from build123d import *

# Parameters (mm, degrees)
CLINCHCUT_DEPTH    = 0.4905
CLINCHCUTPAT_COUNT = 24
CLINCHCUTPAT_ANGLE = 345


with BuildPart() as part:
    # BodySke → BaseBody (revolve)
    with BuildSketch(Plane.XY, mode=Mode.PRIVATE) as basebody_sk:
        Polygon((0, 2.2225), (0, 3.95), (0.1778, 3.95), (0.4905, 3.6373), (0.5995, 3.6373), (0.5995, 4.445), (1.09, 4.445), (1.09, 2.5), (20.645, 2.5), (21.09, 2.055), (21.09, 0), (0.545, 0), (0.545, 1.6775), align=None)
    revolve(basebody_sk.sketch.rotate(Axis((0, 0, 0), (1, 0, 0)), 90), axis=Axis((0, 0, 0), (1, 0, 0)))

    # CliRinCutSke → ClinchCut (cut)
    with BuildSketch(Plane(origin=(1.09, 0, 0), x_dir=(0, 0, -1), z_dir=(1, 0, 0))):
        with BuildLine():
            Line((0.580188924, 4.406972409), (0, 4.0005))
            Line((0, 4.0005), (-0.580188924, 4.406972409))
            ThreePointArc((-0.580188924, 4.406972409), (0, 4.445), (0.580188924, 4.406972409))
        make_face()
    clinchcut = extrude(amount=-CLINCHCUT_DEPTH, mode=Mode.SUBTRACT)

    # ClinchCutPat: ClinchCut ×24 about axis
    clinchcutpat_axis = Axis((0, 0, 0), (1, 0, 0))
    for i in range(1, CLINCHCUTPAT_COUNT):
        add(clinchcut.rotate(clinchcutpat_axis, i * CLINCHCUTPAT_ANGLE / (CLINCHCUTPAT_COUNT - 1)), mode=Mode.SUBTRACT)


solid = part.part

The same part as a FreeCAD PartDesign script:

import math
import FreeCAD as App
import Part
import Sketcher
from FreeCAD import Vector
Q = App.Units.Quantity


def add_polygon(sketch, points):
    """Adds a closed chain of lines whose ends are joined by coincident constraints."""
    first, n = sketch.GeometryCount, len(points)
    for a, b in zip(points, points[1:] + points[:1]):
        sketch.addGeometry(Part.LineSegment(App.Vector(*a, 0), App.Vector(*b, 0)), False)
    for i in range(n):
        sketch.addConstraint(Sketcher.Constraint("Coincident", first + i, 2, first + (i + 1) % n, 1))

doc = App.newDocument("Part")
body = doc.addObject("PartDesign::Body", "Body")

sketch1 = doc.addObject("Sketcher::SketchObject", "Sketch")
body.addObject(sketch1)
sketch1.AttachmentSupport = (doc.XY_Plane, [""])
sketch1.MapMode = "FlatFace"
add_polygon(sketch1, [(0, 3.95), (0, 2.22), (0.55, 1.68), (0.55, 0), (21.09, 0), (21.09, 2.06), (20.64, 2.5), (1.09, 2.5), (1.09, 4.45), (0.6, 4.45), (0.6, 3.64), (0.49, 3.64), (0.18, 3.95)])
sketch1.addConstraint(Sketcher.Constraint("Vertical", 0))
sketch1.addConstraint(Sketcher.Constraint("Vertical", 2))
sketch1.addConstraint(Sketcher.Constraint("Horizontal", 3))
sketch1.addConstraint(Sketcher.Constraint("Vertical", 4))
sketch1.addConstraint(Sketcher.Constraint("Horizontal", 6))
sketch1.addConstraint(Sketcher.Constraint("Vertical", 7))
sketch1.addConstraint(Sketcher.Constraint("Horizontal", 8))
sketch1.addConstraint(Sketcher.Constraint("Vertical", 9))
sketch1.addConstraint(Sketcher.Constraint("Horizontal", 10))
sketch1.addConstraint(Sketcher.Constraint("Horizontal", 12))
sketch1.addConstraint(Sketcher.Constraint("PointOnObject", 0, 2, -2))
sketch1.addConstraint(Sketcher.Constraint("PointOnObject", 2, 2, -1))
sketch1.addConstraint(Sketcher.Constraint("Parallel", 1, 5))
sketch1.addConstraint(Sketcher.Constraint("Parallel", 5, 11))
sketch1.addConstraint(Sketcher.Constraint("Angle", 1, Q("-45 deg")))
sketch1.addConstraint(Sketcher.Constraint("DistanceX", 12, 2, 12, 1, Q("0.007 in")))
sketch1.addConstraint(Sketcher.Constraint("DistanceY", -1, 1, 7, 2, Q("0.175 in")))
sketch1.addConstraint(Sketcher.Constraint("DistanceX", 3, 1, 3, 2, Q("20.545 mm")))
sketch1.addConstraint(Sketcher.Constraint("DistanceX", 6, 2, 6, 1, Q("19.555 mm")))
sketch1.addConstraint(Sketcher.Constraint("DistanceX", 8, 2, 8, 1, Q("0.4905 mm")))
sketch1.addConstraint(Sketcher.Constraint("DistanceX", 10, 2, 10, 1, Q("0.109 mm")))
sketch1.addConstraint(Sketcher.Constraint("DistanceY", 0, 2, 0, 1, Q("1.7275 mm")))
sketch1.addConstraint(Sketcher.Constraint("DistanceY", 2, 2, 2, 1, Q("1.6775 mm")))
sketch1.addConstraint(Sketcher.Constraint("DistanceY", 4, 1, 4, 2, Q("2.055 mm")))
sketch1.addConstraint(Sketcher.Constraint("DistanceY", 7, 1, 7, 2, Q("1.945 mm")))
sketch1.addConstraint(Sketcher.Constraint("DistanceY", -1, 1, 0, 2, Q("0.0875 in")))
revolution = doc.addObject("PartDesign::Revolution", "Revolution")
body.addObject(revolution)
revolution.Profile = sketch1
revolution.ReferenceAxis = (sketch1, ["H_Axis"])
revolution.Angle = 360

sketch2 = doc.addObject("Sketcher::SketchObject", "Sketch001")
body.addObject(sketch2)
sketch2.AttachmentSupport = (doc.YZ_Plane, [""])
sketch2.MapMode = "FlatFace"
sketch2.AttachmentOffset = App.Placement(Vector(0, 0, 1.09), App.Rotation())
sketch2.addGeometry(Part.LineSegment(Vector(4, 0, 0), Vector(4.4, -0.6, 0)), False)
sketch2.addGeometry(Part.ArcOfCircle(Part.Circle(Vector(0, 0, 0), Vector(0, 0, 1), 4.4), math.radians(-7.5), math.radians(7.5)), False)
sketch2.addGeometry(Part.LineSegment(Vector(4.4, 0.6, 0), Vector(4, 0, 0)), False)
sketch2.addConstraint(Sketcher.Constraint("Coincident", 0, 2, 1, 1))
sketch2.addConstraint(Sketcher.Constraint("Coincident", 1, 2, 2, 1))
sketch2.addConstraint(Sketcher.Constraint("Coincident", 2, 2, 0, 1))
sketch2.addConstraint(Sketcher.Constraint("Coincident", 1, 3, -1, 1))
sketch2.addConstraint(Sketcher.Constraint("PointOnObject", 2, 2, -1))
sketch2.addConstraint(Sketcher.Constraint("Vertical", 0, 2, 1, 2))
sketch2.addConstraint(Sketcher.Constraint("Radius", 1, Q("0.175 in")))
sketch2.addConstraint(Sketcher.Constraint("DistanceX", -1, 1, 2, 2, Q("0.1575 in")))
sketch2.addConstraint(Sketcher.Constraint("DistanceY", 0, 2, -1, 1, Q("0.580189 mm")))
pocket1 = doc.addObject("PartDesign::Pocket", "Pocket")
body.addObject(pocket1)
pocket1.Profile = sketch2
pocket1.Length = 0.4905
doc.recompute()

polarpattern = doc.addObject("PartDesign::PolarPattern", "PolarPattern")
body.addObject(polarpattern)
polarpattern.Originals = [pocket1]
polarpattern.Axis = (doc.X_Axis, [""])
polarpattern.Angle = 360
polarpattern.Occurrences = 24
body.Tip = polarpattern

doc.recompute()
